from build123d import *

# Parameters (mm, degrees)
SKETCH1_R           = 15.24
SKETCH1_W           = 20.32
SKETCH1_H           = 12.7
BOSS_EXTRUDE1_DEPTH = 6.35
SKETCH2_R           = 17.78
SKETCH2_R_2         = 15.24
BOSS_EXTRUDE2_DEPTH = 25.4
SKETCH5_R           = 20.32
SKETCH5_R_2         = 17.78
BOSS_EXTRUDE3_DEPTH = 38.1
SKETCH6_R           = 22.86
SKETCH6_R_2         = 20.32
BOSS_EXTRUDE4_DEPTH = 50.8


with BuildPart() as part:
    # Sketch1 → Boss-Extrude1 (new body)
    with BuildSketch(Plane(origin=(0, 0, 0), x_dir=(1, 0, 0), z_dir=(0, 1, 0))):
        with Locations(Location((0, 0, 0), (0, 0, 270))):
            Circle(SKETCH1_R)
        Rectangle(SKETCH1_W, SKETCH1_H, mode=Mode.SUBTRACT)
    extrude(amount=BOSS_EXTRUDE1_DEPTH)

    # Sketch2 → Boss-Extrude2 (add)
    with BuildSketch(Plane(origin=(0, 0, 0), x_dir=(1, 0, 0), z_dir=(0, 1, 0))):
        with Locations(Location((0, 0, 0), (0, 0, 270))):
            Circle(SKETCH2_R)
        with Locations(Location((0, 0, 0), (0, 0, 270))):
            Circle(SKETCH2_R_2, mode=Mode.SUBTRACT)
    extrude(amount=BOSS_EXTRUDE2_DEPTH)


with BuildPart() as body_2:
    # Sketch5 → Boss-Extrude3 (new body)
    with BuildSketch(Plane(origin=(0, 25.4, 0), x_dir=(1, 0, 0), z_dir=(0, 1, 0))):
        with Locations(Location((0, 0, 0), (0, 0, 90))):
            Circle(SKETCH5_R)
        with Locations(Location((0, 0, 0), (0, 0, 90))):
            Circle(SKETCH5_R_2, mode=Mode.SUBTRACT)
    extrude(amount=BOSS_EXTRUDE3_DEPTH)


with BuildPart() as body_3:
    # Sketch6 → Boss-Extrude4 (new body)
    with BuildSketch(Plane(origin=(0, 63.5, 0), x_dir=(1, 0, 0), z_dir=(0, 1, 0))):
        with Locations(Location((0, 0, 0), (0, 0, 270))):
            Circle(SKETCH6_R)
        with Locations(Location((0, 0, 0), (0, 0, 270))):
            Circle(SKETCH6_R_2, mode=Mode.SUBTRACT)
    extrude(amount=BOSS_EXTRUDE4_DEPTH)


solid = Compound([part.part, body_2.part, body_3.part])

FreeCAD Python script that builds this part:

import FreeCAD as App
import Part
import Sketcher
Q = App.Units.Quantity

doc = App.newDocument("Part")
params = doc.addObject("Spreadsheet::Sheet", "Params")
for row, (alias, value) in enumerate([
    ("sketch1_diameter", "1.2 in"),
    ("sketch1_width", "0.8 in"),
    ("sketch1_height", "0.5 in"),
    ("pad1_length", "0.25 in"),
    ("sketch2_diameter", "1.4 in"),
    ("sketch2_diameter2", "1.2 in"),
    ("pad2_length", "1 in"),
    ("sketch3_diameter", "1.6 in"),
    ("sketch3_diameter2", "1.4 in"),
    ("pad3_length", "1.5 in"),
    ("sketch4_diameter", "1.8 in"),
    ("sketch4_diameter2", "1.6 in"),
    ("pad4_length", "2 in"),
], start=1):
    params.set(f"A{row}", alias)
    params.set(f"B{row}", "=" + value)
    params.setAlias(f"B{row}", alias)

body = doc.addObject("PartDesign::Body", "Body")

# Sketch on XZ plane
sketch1 = body.newObject("Sketcher::SketchObject", "Sketch")
sketch1.AttachmentSupport = (doc.getObject("XZ_Plane"), [""])
sketch1.MapMode = "FlatFace"
sketch1.addGeometry(Part.Circle(App.Vector(0, 0, 0), App.Vector(0, 0, 1), 15), False)
sketch1.addGeometry(Part.LineSegment(App.Vector(10, 6, 0), App.Vector(-10, 6, 0)), False)
sketch1.addGeometry(Part.LineSegment(App.Vector(-10, 6, 0), App.Vector(-10, -6, 0)), False)
sketch1.addGeometry(Part.LineSegment(App.Vector(-10, -6, 0), App.Vector(10, -6, 0)), False)
sketch1.addGeometry(Part.LineSegment(App.Vector(10, -6, 0), App.Vector(10, 6, 0)), False)
sketch1.addConstraint(Sketcher.Constraint("Coincident", 1, 2, 2, 1))
sketch1.addConstraint(Sketcher.Constraint("Coincident", 2, 2, 3, 1))
sketch1.addConstraint(Sketcher.Constraint("Coincident", 3, 2, 4, 1))
sketch1.addConstraint(Sketcher.Constraint("Coincident", 4, 2, 1, 1))
sketch1.addConstraint(Sketcher.Constraint("Horizontal", 1))
sketch1.addConstraint(Sketcher.Constraint("Vertical", 2))
sketch1.addConstraint(Sketcher.Constraint("Horizontal", 3))
sketch1.addConstraint(Sketcher.Constraint("Vertical", 4))
sketch1.addConstraint(Sketcher.Constraint("Coincident", 0, 3, -1, 1))
sketch1.addConstraint(Sketcher.Constraint("Symmetric", 1, 2, 3, 2, -1, 1))
sketch1.addConstraint(Sketcher.Constraint("Diameter", 0, Q("1.2 in")))
sketch1.addConstraint(Sketcher.Constraint("DistanceX", 1, 2, 1, 1, Q("0.8 in")))
sketch1.addConstraint(Sketcher.Constraint("DistanceY", 2, 2, 2, 1, Q("0.5 in")))
sketch1.setExpression("Constraints[10]", "Params.sketch1_diameter")
sketch1.setExpression("Constraints[11]", "Params.sketch1_width")
sketch1.setExpression("Constraints[12]", "Params.sketch1_height")
pad1 = body.newObject("PartDesign::Pad", "Pad")
pad1.Profile = sketch1
pad1.setExpression("Length", "Params.pad1_length")
pad1.Reversed = True

# Sketch on XZ plane
sketch2 = body.newObject("Sketcher::SketchObject", "Sketch001")
sketch2.AttachmentSupport = (doc.getObject("XZ_Plane"), [""])
sketch2.MapMode = "FlatFace"
sketch2.addGeometry(Part.Circle(App.Vector(0, 0, 0), App.Vector(0, 0, 1), 18), False)
sketch2.addGeometry(Part.Circle(App.Vector(0, 0, 0), App.Vector(0, 0, 1), 15), False)
sketch2.addConstraint(Sketcher.Constraint("Coincident", 0, 3, -1, 1))
sketch2.addConstraint(Sketcher.Constraint("Coincident", 1, 3, -1, 1))
sketch2.addConstraint(Sketcher.Constraint("Diameter", 0, Q("1.4 in")))
sketch2.addConstraint(Sketcher.Constraint("Diameter", 1, Q("1.2 in")))
sketch2.setExpression("Constraints[2]", "Params.sketch2_diameter")
sketch2.setExpression("Constraints[3]", "Params.sketch2_diameter2")
pad2 = body.newObject("PartDesign::Pad", "Pad001")
pad2.Profile = sketch2
pad2.setExpression("Length", "Params.pad2_length")
pad2.Reversed = True
body2 = doc.addObject("PartDesign::Body", "Body001")

# Sketch on XZ plane
sketch3 = body2.newObject("Sketcher::SketchObject", "Sketch002")
sketch3.AttachmentSupport = (doc.getObject("XZ_Plane001"), [""])
sketch3.MapMode = "FlatFace"
sketch3.AttachmentOffset = App.Placement(App.Vector(0, 0, -1 * 25.4), App.Rotation())
sketch3.addGeometry(Part.Circle(App.Vector(0, 0, 0), App.Vector(0, 0, 1), 20), False)
sketch3.addGeometry(Part.Circle(App.Vector(0, 0, 0), App.Vector(0, 0, 1), 18), False)
sketch3.addConstraint(Sketcher.Constraint("Coincident", 0, 3, -1, 1))
sketch3.addConstraint(Sketcher.Constraint("Coincident", 1, 3, -1, 1))
sketch3.addConstraint(Sketcher.Constraint("Diameter", 0, Q("1.6 in")))
sketch3.addConstraint(Sketcher.Constraint("Diameter", 1, Q("1.4 in")))
sketch3.setExpression("Constraints[2]", "Params.sketch3_diameter")
sketch3.setExpression("Constraints[3]", "Params.sketch3_diameter2")
pad3 = body2.newObject("PartDesign::Pad", "Pad002")
pad3.Profile = sketch3
pad3.setExpression("Length", "Params.pad3_length")
pad3.Reversed = True
body3 = doc.addObject("PartDesign::Body", "Body002")

# Sketch on XZ plane
sketch4 = body3.newObject("Sketcher::SketchObject", "Sketch003")
sketch4.AttachmentSupport = (doc.getObject("XZ_Plane002"), [""])
sketch4.MapMode = "FlatFace"
sketch4.AttachmentOffset = App.Placement(App.Vector(0, 0, -2.5 * 25.4), App.Rotation())
sketch4.addGeometry(Part.Circle(App.Vector(0, 0, 0), App.Vector(0, 0, 1), 23), False)
sketch4.addGeometry(Part.Circle(App.Vector(0, 0, 0), App.Vector(0, 0, 1), 20), False)
sketch4.addConstraint(Sketcher.Constraint("Coincident", 0, 3, -1, 1))
sketch4.addConstraint(Sketcher.Constraint("Coincident", 1, 3, -1, 1))
sketch4.addConstraint(Sketcher.Constraint("Diameter", 0, Q("1.8 in")))
sketch4.addConstraint(Sketcher.Constraint("Diameter", 1, Q("1.6 in")))
sketch4.setExpression("Constraints[2]", "Params.sketch4_diameter")
sketch4.setExpression("Constraints[3]", "Params.sketch4_diameter2")
pad4 = body3.newObject("PartDesign::Pad", "Pad003")
pad4.Profile = sketch4
pad4.setExpression("Length", "Params.pad4_length")
pad4.Reversed = True

doc.recompute()
